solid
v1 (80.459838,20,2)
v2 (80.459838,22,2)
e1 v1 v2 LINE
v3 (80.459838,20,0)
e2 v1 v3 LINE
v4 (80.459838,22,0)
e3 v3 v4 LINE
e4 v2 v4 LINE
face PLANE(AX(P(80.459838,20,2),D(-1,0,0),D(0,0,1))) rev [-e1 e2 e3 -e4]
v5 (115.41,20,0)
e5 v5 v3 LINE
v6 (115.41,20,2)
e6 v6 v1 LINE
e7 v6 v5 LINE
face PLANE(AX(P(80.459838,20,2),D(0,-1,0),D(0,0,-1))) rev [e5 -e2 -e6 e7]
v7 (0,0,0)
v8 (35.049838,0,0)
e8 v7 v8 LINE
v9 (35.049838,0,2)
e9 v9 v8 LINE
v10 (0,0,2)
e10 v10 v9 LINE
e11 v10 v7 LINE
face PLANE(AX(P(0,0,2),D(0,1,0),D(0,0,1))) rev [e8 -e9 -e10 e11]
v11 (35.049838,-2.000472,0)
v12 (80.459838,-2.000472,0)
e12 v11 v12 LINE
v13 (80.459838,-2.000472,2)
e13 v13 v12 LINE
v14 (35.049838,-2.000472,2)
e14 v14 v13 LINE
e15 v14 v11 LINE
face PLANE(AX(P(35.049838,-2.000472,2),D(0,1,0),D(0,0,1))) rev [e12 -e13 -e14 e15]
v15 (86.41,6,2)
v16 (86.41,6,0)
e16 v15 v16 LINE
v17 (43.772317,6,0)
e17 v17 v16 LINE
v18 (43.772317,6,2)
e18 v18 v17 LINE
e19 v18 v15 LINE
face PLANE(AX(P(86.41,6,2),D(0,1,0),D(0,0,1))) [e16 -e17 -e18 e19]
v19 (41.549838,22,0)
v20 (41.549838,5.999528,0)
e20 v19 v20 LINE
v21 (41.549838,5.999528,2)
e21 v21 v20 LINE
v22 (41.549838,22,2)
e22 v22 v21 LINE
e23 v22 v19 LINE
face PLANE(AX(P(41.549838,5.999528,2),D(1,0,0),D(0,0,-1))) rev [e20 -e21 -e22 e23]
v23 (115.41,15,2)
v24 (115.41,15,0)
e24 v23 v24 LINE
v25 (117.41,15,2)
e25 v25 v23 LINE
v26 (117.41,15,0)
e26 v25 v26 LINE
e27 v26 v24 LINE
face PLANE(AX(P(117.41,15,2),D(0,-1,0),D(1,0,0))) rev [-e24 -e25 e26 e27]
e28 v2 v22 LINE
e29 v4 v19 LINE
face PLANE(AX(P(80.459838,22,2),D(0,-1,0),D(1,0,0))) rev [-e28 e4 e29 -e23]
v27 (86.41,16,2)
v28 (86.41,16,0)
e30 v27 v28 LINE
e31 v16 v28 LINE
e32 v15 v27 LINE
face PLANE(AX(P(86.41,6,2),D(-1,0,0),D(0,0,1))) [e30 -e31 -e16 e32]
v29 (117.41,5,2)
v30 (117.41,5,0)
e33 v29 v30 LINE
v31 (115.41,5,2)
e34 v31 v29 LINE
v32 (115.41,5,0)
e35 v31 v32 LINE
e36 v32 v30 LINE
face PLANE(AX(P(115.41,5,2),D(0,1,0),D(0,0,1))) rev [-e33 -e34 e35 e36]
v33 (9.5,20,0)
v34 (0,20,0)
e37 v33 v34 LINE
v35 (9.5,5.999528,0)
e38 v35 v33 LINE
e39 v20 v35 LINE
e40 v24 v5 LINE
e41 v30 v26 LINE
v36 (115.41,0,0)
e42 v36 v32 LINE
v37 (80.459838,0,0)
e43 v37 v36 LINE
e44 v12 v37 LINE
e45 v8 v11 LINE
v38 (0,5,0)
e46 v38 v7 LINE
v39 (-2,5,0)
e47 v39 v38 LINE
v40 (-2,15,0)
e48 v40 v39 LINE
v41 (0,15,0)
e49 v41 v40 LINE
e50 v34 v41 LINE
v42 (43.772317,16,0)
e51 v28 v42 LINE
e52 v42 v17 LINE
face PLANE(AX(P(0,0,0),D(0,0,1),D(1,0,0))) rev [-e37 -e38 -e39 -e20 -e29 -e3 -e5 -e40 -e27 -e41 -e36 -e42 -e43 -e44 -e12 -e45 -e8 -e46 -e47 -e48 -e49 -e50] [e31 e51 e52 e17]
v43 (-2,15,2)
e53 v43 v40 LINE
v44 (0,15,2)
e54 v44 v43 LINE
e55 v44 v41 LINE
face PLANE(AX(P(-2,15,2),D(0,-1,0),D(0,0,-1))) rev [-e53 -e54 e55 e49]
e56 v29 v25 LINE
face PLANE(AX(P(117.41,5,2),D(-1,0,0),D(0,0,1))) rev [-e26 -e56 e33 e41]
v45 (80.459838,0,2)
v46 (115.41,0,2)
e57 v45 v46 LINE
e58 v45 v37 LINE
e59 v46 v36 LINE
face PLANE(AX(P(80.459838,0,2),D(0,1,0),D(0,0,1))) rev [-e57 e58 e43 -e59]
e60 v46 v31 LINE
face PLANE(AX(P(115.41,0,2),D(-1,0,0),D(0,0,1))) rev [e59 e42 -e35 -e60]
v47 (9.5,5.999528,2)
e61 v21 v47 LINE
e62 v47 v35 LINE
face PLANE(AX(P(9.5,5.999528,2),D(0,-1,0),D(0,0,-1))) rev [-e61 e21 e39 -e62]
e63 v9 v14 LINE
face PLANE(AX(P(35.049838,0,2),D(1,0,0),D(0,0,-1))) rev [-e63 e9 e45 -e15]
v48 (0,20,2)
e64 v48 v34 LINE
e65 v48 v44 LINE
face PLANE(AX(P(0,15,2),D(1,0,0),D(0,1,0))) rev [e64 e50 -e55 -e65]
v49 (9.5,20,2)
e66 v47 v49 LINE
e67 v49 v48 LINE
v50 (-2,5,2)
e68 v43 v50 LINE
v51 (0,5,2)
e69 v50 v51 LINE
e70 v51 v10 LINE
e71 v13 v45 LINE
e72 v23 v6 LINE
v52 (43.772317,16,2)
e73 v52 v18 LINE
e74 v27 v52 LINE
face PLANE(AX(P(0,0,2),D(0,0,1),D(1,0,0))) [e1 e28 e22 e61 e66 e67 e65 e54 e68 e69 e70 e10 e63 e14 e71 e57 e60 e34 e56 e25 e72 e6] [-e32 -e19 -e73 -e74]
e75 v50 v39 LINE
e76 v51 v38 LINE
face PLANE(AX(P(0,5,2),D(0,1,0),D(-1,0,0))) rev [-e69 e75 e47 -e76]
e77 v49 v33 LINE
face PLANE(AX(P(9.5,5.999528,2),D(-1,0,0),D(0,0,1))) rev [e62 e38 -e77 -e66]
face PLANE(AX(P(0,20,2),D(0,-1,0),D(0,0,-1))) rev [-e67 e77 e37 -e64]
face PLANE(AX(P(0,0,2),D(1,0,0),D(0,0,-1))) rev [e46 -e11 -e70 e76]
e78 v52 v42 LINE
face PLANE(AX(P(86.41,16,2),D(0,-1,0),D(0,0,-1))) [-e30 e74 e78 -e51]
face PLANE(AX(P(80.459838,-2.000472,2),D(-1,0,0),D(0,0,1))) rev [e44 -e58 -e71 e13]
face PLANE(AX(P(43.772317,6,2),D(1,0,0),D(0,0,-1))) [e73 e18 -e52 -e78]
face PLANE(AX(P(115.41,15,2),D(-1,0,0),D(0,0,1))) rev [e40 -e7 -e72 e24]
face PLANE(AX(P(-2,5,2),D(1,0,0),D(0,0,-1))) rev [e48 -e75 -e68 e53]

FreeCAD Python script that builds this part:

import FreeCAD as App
import Part
import Sketcher
from FreeCAD import Vector

doc = App.newDocument("Part")
params = doc.addObject("Spreadsheet::Sheet", "Params")
for row, (alias, value) in enumerate([
    ("sketch1_width", "2 mm"),
    ("sketch1_height", "5 mm"),
    ("sketch1_height2", "10 mm"),
    ("sketch1_width2", "9.5 mm"),
    ("sketch1_width3", "45.41 mm"),
    ("pad1_length", "2 mm"),
], start=1):
    params.set(f"A{row}", alias)
    params.set(f"B{row}", "=" + value)
    params.setAlias(f"B{row}", alias)

body = doc.addObject("PartDesign::Body", "Body")

# Sketch on XY plane
sketch1 = doc.addObject("Sketcher::SketchObject", "Sketch")
body.addObject(sketch1)
sketch1.AttachmentSupport = (doc.XY_Plane, [""])
sketch1.MapMode = "FlatFace"
sketch1.addGeometry([
    Part.LineSegment(Vector(9.5, 20, 0), Vector(0, 20, 0)),  # 0
    Part.LineSegment(Vector(0, 20, 0), Vector(0, 15, 0)),  # 1
    Part.LineSegment(Vector(0, 15, 0), Vector(-2, 15, 0)),  # 2
    Part.LineSegment(Vector(-2, 15, 0), Vector(-2, 5, 0)),  # 3
    Part.LineSegment(Vector(-2, 5, 0), Vector(0, 5, 0)),  # 4
    Part.LineSegment(Vector(0, 5, 0), Vector(0, 0, 0)),  # 5
    Part.LineSegment(Vector(0, 0, 0), Vector(35.049838, 0, 0)),  # 6
    Part.LineSegment(Vector(35.049838, 0, 0), Vector(35.049838, -2.000472, 0)),  # 7
    Part.LineSegment(Vector(35.049838, -2.000472, 0), Vector(80.459838, -2.000472, 0)),  # 8
    Part.LineSegment(Vector(80.459838, -2.000472, 0), Vector(80.459838, 0, 0)),  # 9
    Part.LineSegment(Vector(80.459838, 0, 0), Vector(115.41, 0, 0)),  # 10
    Part.LineSegment(Vector(115.41, 0, 0), Vector(115.41, 5, 0)),  # 11
    Part.LineSegment(Vector(115.41, 5, 0), Vector(117.41, 5, 0)),  # 12
    Part.LineSegment(Vector(117.41, 5, 0), Vector(117.41, 15, 0)),  # 13
    Part.LineSegment(Vector(117.41, 15, 0), Vector(115.41, 15, 0)),  # 14
    Part.LineSegment(Vector(115.41, 15, 0), Vector(115.41, 20, 0)),  # 15
    Part.LineSegment(Vector(115.41, 20, 0), Vector(80.459838, 20, 0)),  # 16
    Part.LineSegment(Vector(80.459838, 20, 0), Vector(80.459838, 22, 0)),  # 17
    Part.LineSegment(Vector(80.459838, 22, 0), Vector(41.549838, 22, 0)),  # 18
    Part.LineSegment(Vector(41.549838, 22, 0), Vector(41.549838, 5.999528, 0)),  # 19
    Part.LineSegment(Vector(41.549838, 5.999528, 0), Vector(9.5, 5.999528, 0)),  # 20
    Part.LineSegment(Vector(9.5, 5.999528, 0), Vector(9.5, 20, 0)),  # 21
    Part.LineSegment(Vector(43.772317, 6, 0), Vector(43.772317, 16, 0)),  # 22
    Part.LineSegment(Vector(43.772317, 16, 0), Vector(86.41, 16, 0)),  # 23
    Part.LineSegment(Vector(86.41, 16, 0), Vector(86.41, 6, 0)),  # 24
    Part.LineSegment(Vector(86.41, 6, 0), Vector(43.772317, 6, 0)),  # 25
], False)
sketch1.addConstraint([
    Sketcher.Constraint("Coincident", 0, 2, 1, 1),
    Sketcher.Constraint("Coincident", 1, 2, 2, 1),
    Sketcher.Constraint("Coincident", 2, 2, 3, 1),
    Sketcher.Constraint("Coincident", 3, 2, 4, 1),
    Sketcher.Constraint("Coincident", 4, 2, 5, 1),
    Sketcher.Constraint("Coincident", 5, 2, 6, 1),
    Sketcher.Constraint("Coincident", 6, 2, 7, 1),
    Sketcher.Constraint("Coincident", 7, 2, 8, 1),
    Sketcher.Constraint("Coincident", 8, 2, 9, 1),
    Sketcher.Constraint("Coincident", 9, 2, 10, 1),
    Sketcher.Constraint("Coincident", 10, 2, 11, 1),
    Sketcher.Constraint("Coincident", 11, 2, 12, 1),
    Sketcher.Constraint("Coincident", 12, 2, 13, 1),
    Sketcher.Constraint("Coincident", 13, 2, 14, 1),
    Sketcher.Constraint("Coincident", 14, 2, 15, 1),
    Sketcher.Constraint("Coincident", 15, 2, 16, 1),
    Sketcher.Constraint("Coincident", 16, 2, 17, 1),
    Sketcher.Constraint("Coincident", 17, 2, 18, 1),
    Sketcher.Constraint("Coincident", 18, 2, 19, 1),
    Sketcher.Constraint("Coincident", 19, 2, 20, 1),
    Sketcher.Constraint("Coincident", 20, 2, 21, 1),
    Sketcher.Constraint("Coincident", 21, 2, 0, 1),
    Sketcher.Constraint("Coincident", 22, 2, 23, 1),
    Sketcher.Constraint("Coincident", 23, 2, 24, 1),
    Sketcher.Constraint("Coincident", 24, 2, 25, 1),
    Sketcher.Constraint("Coincident", 25, 2, 22, 1),
    Sketcher.Constraint("Horizontal", 0),
    Sketcher.Constraint("Vertical", 1),
    Sketcher.Constraint("Horizontal", 2),
    Sketcher.Constraint("Vertical", 3),
    Sketcher.Constraint("Horizontal", 4),
    Sketcher.Constraint("Vertical", 5),
    Sketcher.Constraint("Horizontal", 6),
    Sketcher.Constraint("Vertical", 7),
    Sketcher.Constraint("Horizontal", 8),
    Sketcher.Constraint("Vertical", 9),
    Sketcher.Constraint("Horizontal", 10),
    Sketcher.Constraint("Vertical", 11),
    Sketcher.Constraint("Horizontal", 12),
    Sketcher.Constraint("Vertical", 13),
    Sketcher.Constraint("Horizontal", 14),
    Sketcher.Constraint("Vertical", 15),
    Sketcher.Constraint("Horizontal", 16),
    Sketcher.Constraint("Vertical", 17),
    Sketcher.Constraint("Horizontal", 18),
    Sketcher.Constraint("Vertical", 19),
    Sketcher.Constraint("Horizontal", 20),
    Sketcher.Constraint("Vertical", 21),
    Sketcher.Constraint("Vertical", 22),
    Sketcher.Constraint("Horizontal", 23),
    Sketcher.Constraint("Vertical", 24),
    Sketcher.Constraint("Horizontal", 25),
    Sketcher.Constraint("Coincident", 5, 2, -1, 1),
    Sketcher.Constraint("PointOnObject", 0, 2, -2),
    Sketcher.Constraint("PointOnObject", 9, 2, -1),
    Sketcher.Constraint("Horizontal", 4, 2, 11, 2),
    Sketcher.Constraint("Horizontal", 2, 2, 13, 2),
    Sketcher.Constraint("Horizontal", 0, 2, 15, 2),
    Sketcher.Constraint("Vertical", 11, 2, 14, 2),
    Sketcher.Constraint("Vertical", 9, 2, 16, 2),
    Sketcher.Constraint("Equal", 4, 12),
    Sketcher.Constraint("Equal", 1, 5),
    Sketcher.Constraint("Equal", 14, 17),
    Sketcher.Constraint("Equal", 13, 22),
    Sketcher.Constraint("DistanceX", 2, 2, 2, 1, 2.0),
    Sketcher.Constraint("DistanceY", 1, 2, 1, 1, 5.0),
    Sketcher.Constraint("DistanceY", 3, 2, 3, 1, 10.0),
    Sketcher.Constraint("DistanceX", 0, 2, 0, 1, 9.5),
    Sketcher.Constraint("DistanceY", -1, 1, 22, 2, 16.0),
    Sketcher.Constraint("DistanceY", 7, 2, 19, 2, 8.0),
    Sketcher.Constraint("DistanceX", 23, 2, 14, 2, 29.0),
    Sketcher.Constraint("DistanceX", 8, 1, 8, 2, 45.41),
    Sketcher.Constraint("DistanceX", 18, 2, 18, 1, 38.91),
    Sketcher.Constraint("DistanceX", -1, 1, 10, 2, 115.41),
    Sketcher.Constraint("DistanceY", 7, 2, 7, 1, 2.000472),
    Sketcher.Constraint("DistanceX", 6, 1, 6, 2, 35.049838),
    Sketcher.Constraint("DistanceX", 23, 1, 23, 2, 42.637683),
])
sketch1.setExpression("Constraints[64]", "Params.sketch1_width")
sketch1.setExpression("Constraints[65]", "Params.sketch1_height")
sketch1.setExpression("Constraints[66]", "Params.sketch1_height2")
sketch1.setExpression("Constraints[67]", "Params.sketch1_width2")
sketch1.setExpression("Constraints[71]", "Params.sketch1_width3")
pad1 = doc.addObject("PartDesign::Pad", "Pad")
body.addObject(pad1)
pad1.Profile = sketch1
pad1.setExpression("Length", "Params.pad1_length")

doc.recompute()
